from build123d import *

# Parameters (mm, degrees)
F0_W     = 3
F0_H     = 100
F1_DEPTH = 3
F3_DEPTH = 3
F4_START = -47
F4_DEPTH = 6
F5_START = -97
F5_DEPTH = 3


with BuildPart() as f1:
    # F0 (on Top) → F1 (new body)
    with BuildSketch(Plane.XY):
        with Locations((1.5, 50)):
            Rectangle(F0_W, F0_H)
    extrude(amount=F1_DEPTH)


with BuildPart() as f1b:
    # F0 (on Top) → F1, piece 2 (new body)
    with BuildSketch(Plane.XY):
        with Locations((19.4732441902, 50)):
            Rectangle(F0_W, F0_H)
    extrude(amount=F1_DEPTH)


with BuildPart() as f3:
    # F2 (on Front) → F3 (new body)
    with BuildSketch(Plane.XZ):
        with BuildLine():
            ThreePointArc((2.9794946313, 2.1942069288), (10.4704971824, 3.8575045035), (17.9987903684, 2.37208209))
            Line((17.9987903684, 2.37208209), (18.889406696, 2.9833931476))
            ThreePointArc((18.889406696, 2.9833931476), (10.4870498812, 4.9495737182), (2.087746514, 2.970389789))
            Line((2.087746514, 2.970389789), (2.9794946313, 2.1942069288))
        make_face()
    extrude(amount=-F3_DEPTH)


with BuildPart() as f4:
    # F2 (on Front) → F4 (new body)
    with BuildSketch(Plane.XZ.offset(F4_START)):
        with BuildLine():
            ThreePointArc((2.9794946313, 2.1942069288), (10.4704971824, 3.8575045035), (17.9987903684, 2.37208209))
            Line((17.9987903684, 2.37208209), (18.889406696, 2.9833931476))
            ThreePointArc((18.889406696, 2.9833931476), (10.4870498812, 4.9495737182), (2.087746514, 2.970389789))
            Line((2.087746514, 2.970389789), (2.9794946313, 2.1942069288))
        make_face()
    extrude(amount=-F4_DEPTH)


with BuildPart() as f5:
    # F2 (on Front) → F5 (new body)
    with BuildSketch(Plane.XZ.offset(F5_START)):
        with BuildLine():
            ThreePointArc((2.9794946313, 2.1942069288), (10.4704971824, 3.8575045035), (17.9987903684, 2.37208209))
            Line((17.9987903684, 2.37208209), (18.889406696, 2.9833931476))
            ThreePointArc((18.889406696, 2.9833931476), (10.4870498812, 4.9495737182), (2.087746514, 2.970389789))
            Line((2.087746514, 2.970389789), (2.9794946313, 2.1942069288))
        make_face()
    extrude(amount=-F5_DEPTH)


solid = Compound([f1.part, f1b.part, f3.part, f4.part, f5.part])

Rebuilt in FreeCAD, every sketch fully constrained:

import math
import FreeCAD as App
import Part
import Sketcher
from FreeCAD import Vector


def add_polygon(sketch, points):
    """Adds a closed chain of lines whose ends are joined by coincident constraints."""
    first, n = sketch.GeometryCount, len(points)
    for a, b in zip(points, points[1:] + points[:1]):
        sketch.addGeometry(Part.LineSegment(App.Vector(*a, 0), App.Vector(*b, 0)), False)
    for i in range(n):
        sketch.addConstraint(Sketcher.Constraint("Coincident", first + i, 2, first + (i + 1) % n, 1))

doc = App.newDocument("Part")
body = doc.addObject("PartDesign::Body", "Body")

sketch1 = body.newObject("Sketcher::SketchObject", "Sketch")
sketch1.AttachmentSupport = (doc.getObject("XY_Plane"), [""])
sketch1.MapMode = "FlatFace"
add_polygon(sketch1, [(0, 100), (0, 0), (3, 0), (3, 100)])
sketch1.addConstraint([
    Sketcher.Constraint("Vertical", 0),
    Sketcher.Constraint("Horizontal", 1),
    Sketcher.Constraint("Vertical", 2),
    Sketcher.Constraint("Horizontal", 3),
    Sketcher.Constraint("Coincident", 0, 2, -1, 1),
    Sketcher.Constraint("DistanceX", 1, 1, 1, 2, 3.0),
    Sketcher.Constraint("DistanceY", 0, 2, 0, 1, 100.0),
])
pad1 = body.newObject("PartDesign::Pad", "Pad")
pad1.Profile = sketch1
pad1.Length = 3
body2 = doc.addObject("PartDesign::Body", "Body001")

sketch2 = body2.newObject("Sketcher::SketchObject", "Sketch001")
sketch2.AttachmentSupport = (doc.getObject("XY_Plane001"), [""])
sketch2.MapMode = "FlatFace"
add_polygon(sketch2, [(18, 100), (18, 0), (21, 0), (21, 100)])
sketch2.addConstraint([
    Sketcher.Constraint("Vertical", 0),
    Sketcher.Constraint("Horizontal", 1),
    Sketcher.Constraint("Vertical", 2),
    Sketcher.Constraint("Horizontal", 3),
    Sketcher.Constraint("PointOnObject", 0, 2, -1),
    Sketcher.Constraint("DistanceX", 1, 1, 1, 2, 3.0),
    Sketcher.Constraint("DistanceY", 0, 2, 0, 1, 100.0),
    Sketcher.Constraint("DistanceX", -1, 1, 0, 2, 17.973244),
])
pad2 = body2.newObject("PartDesign::Pad", "Pad001")
pad2.Profile = sketch2
pad2.Length = 3
body3 = doc.addObject("PartDesign::Body", "Body002")

sketch3 = body3.newObject("Sketcher::SketchObject", "Sketch002")
sketch3.AttachmentSupport = (doc.getObject("XZ_Plane002"), [""])
sketch3.MapMode = "FlatFace"
sketch3.addGeometry([
    Part.ArcOfCircle(Part.Circle(Vector(10.7, -14.8, 0), Vector(0, 0, 1), 18.7), math.radians(67), math.radians(114)),
    Part.LineSegment(Vector(18, 2.4, 0), Vector(18.9, 3, 0)),
    Part.ArcOfCircle(Part.Circle(Vector(10.5, -13.9, 0), Vector(0, 0, 1), 18.9), math.radians(64), math.radians(116)),
    Part.LineSegment(Vector(2.1, 3, 0), Vector(3, 2.2, 0)),
], False)
sketch3.addConstraint([
    Sketcher.Constraint("Coincident", 0, 1, 1, 1),
    Sketcher.Constraint("Coincident", 1, 2, 2, 1),
    Sketcher.Constraint("Coincident", 2, 2, 3, 1),
    Sketcher.Constraint("Coincident", 3, 2, 0, 2),
    Sketcher.Constraint("Radius", 2, 18.874161),
    Sketcher.Constraint("Radius", 0, 18.698884),
    Sketcher.Constraint("Distance", 1, 1.080231),
    Sketcher.Constraint("DistanceY", 0, 3, -1, 1, 14.840068),
    Sketcher.Constraint("DistanceY", 2, 3, -1, 1, 13.924581),
    Sketcher.Constraint("DistanceX", -1, 1, 0, 1, 17.99879),
    Sketcher.Constraint("DistanceY", -1, 1, 2, 2, 2.97039),
    Sketcher.Constraint("DistanceY", 0, 3, 0, 1, 17.21215),
    Sketcher.Constraint("DistanceY", 0, 1, 1, 2, 0.611311),
    Sketcher.Constraint("DistanceX", 2, 2, 3, 2, 0.891748),
])
pad3 = body3.newObject("PartDesign::Pad", "Pad002")
pad3.Profile = sketch3
pad3.Length = 3
pad3.Reversed = True
body4 = doc.addObject("PartDesign::Body", "Body003")

sketch4 = body4.newObject("Sketcher::SketchObject", "Sketch003")
sketch4.AttachmentSupport = (doc.getObject("XZ_Plane003"), [""])
sketch4.MapMode = "FlatFace"
sketch4.AttachmentOffset = App.Placement(Vector(0, 0, -47), App.Rotation())
sketch4.addGeometry([
    Part.ArcOfCircle(Part.Circle(Vector(10.7, -14.8, 0), Vector(0, 0, 1), 18.7), math.radians(67), math.radians(114)),
    Part.LineSegment(Vector(18, 2.4, 0), Vector(18.9, 3, 0)),
    Part.ArcOfCircle(Part.Circle(Vector(10.5, -13.9, 0), Vector(0, 0, 1), 18.9), math.radians(64), math.radians(116)),
    Part.LineSegment(Vector(2.1, 3, 0), Vector(3, 2.2, 0)),
], False)
sketch4.addConstraint([
    Sketcher.Constraint("Coincident", 0, 1, 1, 1),
    Sketcher.Constraint("Coincident", 1, 2, 2, 1),
    Sketcher.Constraint("Coincident", 2, 2, 3, 1),
    Sketcher.Constraint("Coincident", 3, 2, 0, 2),
    Sketcher.Constraint("Radius", 2, 18.874161),
    Sketcher.Constraint("Radius", 0, 18.698884),
    Sketcher.Constraint("Distance", 1, 1.080231),
    Sketcher.Constraint("DistanceY", 0, 3, -1, 1, 14.840068),
    Sketcher.Constraint("DistanceY", 2, 3, -1, 1, 13.924581),
    Sketcher.Constraint("DistanceX", -1, 1, 0, 1, 17.99879),
    Sketcher.Constraint("DistanceY", -1, 1, 2, 2, 2.97039),
    Sketcher.Constraint("DistanceY", 0, 3, 0, 1, 17.21215),
    Sketcher.Constraint("DistanceY", 0, 1, 1, 2, 0.611311),
    Sketcher.Constraint("DistanceX", 2, 2, 3, 2, 0.891748),
])
pad4 = body4.newObject("PartDesign::Pad", "Pad003")
pad4.Profile = sketch4
pad4.Length = 6
pad4.Reversed = True
body5 = doc.addObject("PartDesign::Body", "Body004")

sketch5 = body5.newObject("Sketcher::SketchObject", "Sketch004")
sketch5.AttachmentSupport = (doc.getObject("XZ_Plane004"), [""])
sketch5.MapMode = "FlatFace"
sketch5.AttachmentOffset = App.Placement(Vector(0, 0, -97), App.Rotation())
sketch5.addGeometry([
    Part.ArcOfCircle(Part.Circle(Vector(10.7, -14.8, 0), Vector(0, 0, 1), 18.7), math.radians(67), math.radians(114)),
    Part.LineSegment(Vector(18, 2.4, 0), Vector(18.9, 3, 0)),
    Part.ArcOfCircle(Part.Circle(Vector(10.5, -13.9, 0), Vector(0, 0, 1), 18.9), math.radians(64), math.radians(116)),
    Part.LineSegment(Vector(2.1, 3, 0), Vector(3, 2.2, 0)),
], False)
sketch5.addConstraint([
    Sketcher.Constraint("Coincident", 0, 1, 1, 1),
    Sketcher.Constraint("Coincident", 1, 2, 2, 1),
    Sketcher.Constraint("Coincident", 2, 2, 3, 1),
    Sketcher.Constraint("Coincident", 3, 2, 0, 2),
    Sketcher.Constraint("Radius", 2, 18.874161),
    Sketcher.Constraint("Radius", 0, 18.698884),
    Sketcher.Constraint("Distance", 1, 1.080231),
    Sketcher.Constraint("DistanceY", 0, 3, -1, 1, 14.840068),
    Sketcher.Constraint("DistanceY", 2, 3, -1, 1, 13.924581),
    Sketcher.Constraint("DistanceX", -1, 1, 0, 1, 17.99879),
    Sketcher.Constraint("DistanceY", -1, 1, 2, 2, 2.97039),
    Sketcher.Constraint("DistanceY", 0, 3, 0, 1, 17.21215),
    Sketcher.Constraint("DistanceY", 0, 1, 1, 2, 0.611311),
    Sketcher.Constraint("DistanceX", 2, 2, 3, 2, 0.891748),
])
pad5 = body5.newObject("PartDesign::Pad", "Pad004")
pad5.Profile = sketch5
pad5.Length = 3
pad5.Reversed = True

doc.recompute()
